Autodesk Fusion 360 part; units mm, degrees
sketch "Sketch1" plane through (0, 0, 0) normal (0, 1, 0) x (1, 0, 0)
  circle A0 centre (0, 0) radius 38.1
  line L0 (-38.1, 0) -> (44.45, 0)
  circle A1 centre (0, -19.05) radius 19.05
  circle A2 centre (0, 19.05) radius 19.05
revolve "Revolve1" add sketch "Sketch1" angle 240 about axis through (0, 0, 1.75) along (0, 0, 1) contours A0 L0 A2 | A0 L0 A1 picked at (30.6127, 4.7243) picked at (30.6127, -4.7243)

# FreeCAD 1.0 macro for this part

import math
import FreeCAD as App
import Part
import Sketcher
Q = App.Units.Quantity

doc = App.newDocument("Part")
body = doc.addObject("PartDesign::Body", "Body")

# Sketch on XZ plane
sketch1 = body.newObject("Sketcher::SketchObject", "Sketch")
sketch1.AttachmentSupport = (doc.getObject("XZ_Plane"), [""])
sketch1.MapMode = "FlatFace"
sketch1.addGeometry(Part.ArcOfCircle(Part.Circle(App.Vector(0, 19, 0), App.Vector(0, 0, 1), 19), math.radians(-90), math.radians(90)), False)
sketch1.addGeometry(Part.ArcOfCircle(Part.Circle(App.Vector(0, 0, 0), App.Vector(0, 0, 1), 38), math.radians(-90), math.radians(90)), False)
sketch1.addGeometry(Part.ArcOfCircle(Part.Circle(App.Vector(0, -19, 0), App.Vector(0, 0, 1), 19), math.radians(-90), math.radians(90)), False)
sketch1.addConstraint(Sketcher.Constraint("Tangent", 0, 2, 1, 2))
sketch1.addConstraint(Sketcher.Constraint("Tangent", 1, 1, 2, 1))
sketch1.addConstraint(Sketcher.Constraint("Tangent", 2, 2, 0, 1))
sketch1.addConstraint(Sketcher.Constraint("Coincident", 1, 3, -1, 1))
sketch1.addConstraint(Sketcher.Constraint("Coincident", 2, 2, -1, 1))
sketch1.addConstraint(Sketcher.Constraint("PointOnObject", 0, 3, -2))
sketch1.addConstraint(Sketcher.Constraint("Radius", 1, Q("1.5 in")))
revolution = body.newObject("PartDesign::Revolution", "Revolution")
revolution.Profile = sketch1
revolution.ReferenceAxis = (sketch1, ["V_Axis"])
revolution.Angle = 240

doc.recompute()
